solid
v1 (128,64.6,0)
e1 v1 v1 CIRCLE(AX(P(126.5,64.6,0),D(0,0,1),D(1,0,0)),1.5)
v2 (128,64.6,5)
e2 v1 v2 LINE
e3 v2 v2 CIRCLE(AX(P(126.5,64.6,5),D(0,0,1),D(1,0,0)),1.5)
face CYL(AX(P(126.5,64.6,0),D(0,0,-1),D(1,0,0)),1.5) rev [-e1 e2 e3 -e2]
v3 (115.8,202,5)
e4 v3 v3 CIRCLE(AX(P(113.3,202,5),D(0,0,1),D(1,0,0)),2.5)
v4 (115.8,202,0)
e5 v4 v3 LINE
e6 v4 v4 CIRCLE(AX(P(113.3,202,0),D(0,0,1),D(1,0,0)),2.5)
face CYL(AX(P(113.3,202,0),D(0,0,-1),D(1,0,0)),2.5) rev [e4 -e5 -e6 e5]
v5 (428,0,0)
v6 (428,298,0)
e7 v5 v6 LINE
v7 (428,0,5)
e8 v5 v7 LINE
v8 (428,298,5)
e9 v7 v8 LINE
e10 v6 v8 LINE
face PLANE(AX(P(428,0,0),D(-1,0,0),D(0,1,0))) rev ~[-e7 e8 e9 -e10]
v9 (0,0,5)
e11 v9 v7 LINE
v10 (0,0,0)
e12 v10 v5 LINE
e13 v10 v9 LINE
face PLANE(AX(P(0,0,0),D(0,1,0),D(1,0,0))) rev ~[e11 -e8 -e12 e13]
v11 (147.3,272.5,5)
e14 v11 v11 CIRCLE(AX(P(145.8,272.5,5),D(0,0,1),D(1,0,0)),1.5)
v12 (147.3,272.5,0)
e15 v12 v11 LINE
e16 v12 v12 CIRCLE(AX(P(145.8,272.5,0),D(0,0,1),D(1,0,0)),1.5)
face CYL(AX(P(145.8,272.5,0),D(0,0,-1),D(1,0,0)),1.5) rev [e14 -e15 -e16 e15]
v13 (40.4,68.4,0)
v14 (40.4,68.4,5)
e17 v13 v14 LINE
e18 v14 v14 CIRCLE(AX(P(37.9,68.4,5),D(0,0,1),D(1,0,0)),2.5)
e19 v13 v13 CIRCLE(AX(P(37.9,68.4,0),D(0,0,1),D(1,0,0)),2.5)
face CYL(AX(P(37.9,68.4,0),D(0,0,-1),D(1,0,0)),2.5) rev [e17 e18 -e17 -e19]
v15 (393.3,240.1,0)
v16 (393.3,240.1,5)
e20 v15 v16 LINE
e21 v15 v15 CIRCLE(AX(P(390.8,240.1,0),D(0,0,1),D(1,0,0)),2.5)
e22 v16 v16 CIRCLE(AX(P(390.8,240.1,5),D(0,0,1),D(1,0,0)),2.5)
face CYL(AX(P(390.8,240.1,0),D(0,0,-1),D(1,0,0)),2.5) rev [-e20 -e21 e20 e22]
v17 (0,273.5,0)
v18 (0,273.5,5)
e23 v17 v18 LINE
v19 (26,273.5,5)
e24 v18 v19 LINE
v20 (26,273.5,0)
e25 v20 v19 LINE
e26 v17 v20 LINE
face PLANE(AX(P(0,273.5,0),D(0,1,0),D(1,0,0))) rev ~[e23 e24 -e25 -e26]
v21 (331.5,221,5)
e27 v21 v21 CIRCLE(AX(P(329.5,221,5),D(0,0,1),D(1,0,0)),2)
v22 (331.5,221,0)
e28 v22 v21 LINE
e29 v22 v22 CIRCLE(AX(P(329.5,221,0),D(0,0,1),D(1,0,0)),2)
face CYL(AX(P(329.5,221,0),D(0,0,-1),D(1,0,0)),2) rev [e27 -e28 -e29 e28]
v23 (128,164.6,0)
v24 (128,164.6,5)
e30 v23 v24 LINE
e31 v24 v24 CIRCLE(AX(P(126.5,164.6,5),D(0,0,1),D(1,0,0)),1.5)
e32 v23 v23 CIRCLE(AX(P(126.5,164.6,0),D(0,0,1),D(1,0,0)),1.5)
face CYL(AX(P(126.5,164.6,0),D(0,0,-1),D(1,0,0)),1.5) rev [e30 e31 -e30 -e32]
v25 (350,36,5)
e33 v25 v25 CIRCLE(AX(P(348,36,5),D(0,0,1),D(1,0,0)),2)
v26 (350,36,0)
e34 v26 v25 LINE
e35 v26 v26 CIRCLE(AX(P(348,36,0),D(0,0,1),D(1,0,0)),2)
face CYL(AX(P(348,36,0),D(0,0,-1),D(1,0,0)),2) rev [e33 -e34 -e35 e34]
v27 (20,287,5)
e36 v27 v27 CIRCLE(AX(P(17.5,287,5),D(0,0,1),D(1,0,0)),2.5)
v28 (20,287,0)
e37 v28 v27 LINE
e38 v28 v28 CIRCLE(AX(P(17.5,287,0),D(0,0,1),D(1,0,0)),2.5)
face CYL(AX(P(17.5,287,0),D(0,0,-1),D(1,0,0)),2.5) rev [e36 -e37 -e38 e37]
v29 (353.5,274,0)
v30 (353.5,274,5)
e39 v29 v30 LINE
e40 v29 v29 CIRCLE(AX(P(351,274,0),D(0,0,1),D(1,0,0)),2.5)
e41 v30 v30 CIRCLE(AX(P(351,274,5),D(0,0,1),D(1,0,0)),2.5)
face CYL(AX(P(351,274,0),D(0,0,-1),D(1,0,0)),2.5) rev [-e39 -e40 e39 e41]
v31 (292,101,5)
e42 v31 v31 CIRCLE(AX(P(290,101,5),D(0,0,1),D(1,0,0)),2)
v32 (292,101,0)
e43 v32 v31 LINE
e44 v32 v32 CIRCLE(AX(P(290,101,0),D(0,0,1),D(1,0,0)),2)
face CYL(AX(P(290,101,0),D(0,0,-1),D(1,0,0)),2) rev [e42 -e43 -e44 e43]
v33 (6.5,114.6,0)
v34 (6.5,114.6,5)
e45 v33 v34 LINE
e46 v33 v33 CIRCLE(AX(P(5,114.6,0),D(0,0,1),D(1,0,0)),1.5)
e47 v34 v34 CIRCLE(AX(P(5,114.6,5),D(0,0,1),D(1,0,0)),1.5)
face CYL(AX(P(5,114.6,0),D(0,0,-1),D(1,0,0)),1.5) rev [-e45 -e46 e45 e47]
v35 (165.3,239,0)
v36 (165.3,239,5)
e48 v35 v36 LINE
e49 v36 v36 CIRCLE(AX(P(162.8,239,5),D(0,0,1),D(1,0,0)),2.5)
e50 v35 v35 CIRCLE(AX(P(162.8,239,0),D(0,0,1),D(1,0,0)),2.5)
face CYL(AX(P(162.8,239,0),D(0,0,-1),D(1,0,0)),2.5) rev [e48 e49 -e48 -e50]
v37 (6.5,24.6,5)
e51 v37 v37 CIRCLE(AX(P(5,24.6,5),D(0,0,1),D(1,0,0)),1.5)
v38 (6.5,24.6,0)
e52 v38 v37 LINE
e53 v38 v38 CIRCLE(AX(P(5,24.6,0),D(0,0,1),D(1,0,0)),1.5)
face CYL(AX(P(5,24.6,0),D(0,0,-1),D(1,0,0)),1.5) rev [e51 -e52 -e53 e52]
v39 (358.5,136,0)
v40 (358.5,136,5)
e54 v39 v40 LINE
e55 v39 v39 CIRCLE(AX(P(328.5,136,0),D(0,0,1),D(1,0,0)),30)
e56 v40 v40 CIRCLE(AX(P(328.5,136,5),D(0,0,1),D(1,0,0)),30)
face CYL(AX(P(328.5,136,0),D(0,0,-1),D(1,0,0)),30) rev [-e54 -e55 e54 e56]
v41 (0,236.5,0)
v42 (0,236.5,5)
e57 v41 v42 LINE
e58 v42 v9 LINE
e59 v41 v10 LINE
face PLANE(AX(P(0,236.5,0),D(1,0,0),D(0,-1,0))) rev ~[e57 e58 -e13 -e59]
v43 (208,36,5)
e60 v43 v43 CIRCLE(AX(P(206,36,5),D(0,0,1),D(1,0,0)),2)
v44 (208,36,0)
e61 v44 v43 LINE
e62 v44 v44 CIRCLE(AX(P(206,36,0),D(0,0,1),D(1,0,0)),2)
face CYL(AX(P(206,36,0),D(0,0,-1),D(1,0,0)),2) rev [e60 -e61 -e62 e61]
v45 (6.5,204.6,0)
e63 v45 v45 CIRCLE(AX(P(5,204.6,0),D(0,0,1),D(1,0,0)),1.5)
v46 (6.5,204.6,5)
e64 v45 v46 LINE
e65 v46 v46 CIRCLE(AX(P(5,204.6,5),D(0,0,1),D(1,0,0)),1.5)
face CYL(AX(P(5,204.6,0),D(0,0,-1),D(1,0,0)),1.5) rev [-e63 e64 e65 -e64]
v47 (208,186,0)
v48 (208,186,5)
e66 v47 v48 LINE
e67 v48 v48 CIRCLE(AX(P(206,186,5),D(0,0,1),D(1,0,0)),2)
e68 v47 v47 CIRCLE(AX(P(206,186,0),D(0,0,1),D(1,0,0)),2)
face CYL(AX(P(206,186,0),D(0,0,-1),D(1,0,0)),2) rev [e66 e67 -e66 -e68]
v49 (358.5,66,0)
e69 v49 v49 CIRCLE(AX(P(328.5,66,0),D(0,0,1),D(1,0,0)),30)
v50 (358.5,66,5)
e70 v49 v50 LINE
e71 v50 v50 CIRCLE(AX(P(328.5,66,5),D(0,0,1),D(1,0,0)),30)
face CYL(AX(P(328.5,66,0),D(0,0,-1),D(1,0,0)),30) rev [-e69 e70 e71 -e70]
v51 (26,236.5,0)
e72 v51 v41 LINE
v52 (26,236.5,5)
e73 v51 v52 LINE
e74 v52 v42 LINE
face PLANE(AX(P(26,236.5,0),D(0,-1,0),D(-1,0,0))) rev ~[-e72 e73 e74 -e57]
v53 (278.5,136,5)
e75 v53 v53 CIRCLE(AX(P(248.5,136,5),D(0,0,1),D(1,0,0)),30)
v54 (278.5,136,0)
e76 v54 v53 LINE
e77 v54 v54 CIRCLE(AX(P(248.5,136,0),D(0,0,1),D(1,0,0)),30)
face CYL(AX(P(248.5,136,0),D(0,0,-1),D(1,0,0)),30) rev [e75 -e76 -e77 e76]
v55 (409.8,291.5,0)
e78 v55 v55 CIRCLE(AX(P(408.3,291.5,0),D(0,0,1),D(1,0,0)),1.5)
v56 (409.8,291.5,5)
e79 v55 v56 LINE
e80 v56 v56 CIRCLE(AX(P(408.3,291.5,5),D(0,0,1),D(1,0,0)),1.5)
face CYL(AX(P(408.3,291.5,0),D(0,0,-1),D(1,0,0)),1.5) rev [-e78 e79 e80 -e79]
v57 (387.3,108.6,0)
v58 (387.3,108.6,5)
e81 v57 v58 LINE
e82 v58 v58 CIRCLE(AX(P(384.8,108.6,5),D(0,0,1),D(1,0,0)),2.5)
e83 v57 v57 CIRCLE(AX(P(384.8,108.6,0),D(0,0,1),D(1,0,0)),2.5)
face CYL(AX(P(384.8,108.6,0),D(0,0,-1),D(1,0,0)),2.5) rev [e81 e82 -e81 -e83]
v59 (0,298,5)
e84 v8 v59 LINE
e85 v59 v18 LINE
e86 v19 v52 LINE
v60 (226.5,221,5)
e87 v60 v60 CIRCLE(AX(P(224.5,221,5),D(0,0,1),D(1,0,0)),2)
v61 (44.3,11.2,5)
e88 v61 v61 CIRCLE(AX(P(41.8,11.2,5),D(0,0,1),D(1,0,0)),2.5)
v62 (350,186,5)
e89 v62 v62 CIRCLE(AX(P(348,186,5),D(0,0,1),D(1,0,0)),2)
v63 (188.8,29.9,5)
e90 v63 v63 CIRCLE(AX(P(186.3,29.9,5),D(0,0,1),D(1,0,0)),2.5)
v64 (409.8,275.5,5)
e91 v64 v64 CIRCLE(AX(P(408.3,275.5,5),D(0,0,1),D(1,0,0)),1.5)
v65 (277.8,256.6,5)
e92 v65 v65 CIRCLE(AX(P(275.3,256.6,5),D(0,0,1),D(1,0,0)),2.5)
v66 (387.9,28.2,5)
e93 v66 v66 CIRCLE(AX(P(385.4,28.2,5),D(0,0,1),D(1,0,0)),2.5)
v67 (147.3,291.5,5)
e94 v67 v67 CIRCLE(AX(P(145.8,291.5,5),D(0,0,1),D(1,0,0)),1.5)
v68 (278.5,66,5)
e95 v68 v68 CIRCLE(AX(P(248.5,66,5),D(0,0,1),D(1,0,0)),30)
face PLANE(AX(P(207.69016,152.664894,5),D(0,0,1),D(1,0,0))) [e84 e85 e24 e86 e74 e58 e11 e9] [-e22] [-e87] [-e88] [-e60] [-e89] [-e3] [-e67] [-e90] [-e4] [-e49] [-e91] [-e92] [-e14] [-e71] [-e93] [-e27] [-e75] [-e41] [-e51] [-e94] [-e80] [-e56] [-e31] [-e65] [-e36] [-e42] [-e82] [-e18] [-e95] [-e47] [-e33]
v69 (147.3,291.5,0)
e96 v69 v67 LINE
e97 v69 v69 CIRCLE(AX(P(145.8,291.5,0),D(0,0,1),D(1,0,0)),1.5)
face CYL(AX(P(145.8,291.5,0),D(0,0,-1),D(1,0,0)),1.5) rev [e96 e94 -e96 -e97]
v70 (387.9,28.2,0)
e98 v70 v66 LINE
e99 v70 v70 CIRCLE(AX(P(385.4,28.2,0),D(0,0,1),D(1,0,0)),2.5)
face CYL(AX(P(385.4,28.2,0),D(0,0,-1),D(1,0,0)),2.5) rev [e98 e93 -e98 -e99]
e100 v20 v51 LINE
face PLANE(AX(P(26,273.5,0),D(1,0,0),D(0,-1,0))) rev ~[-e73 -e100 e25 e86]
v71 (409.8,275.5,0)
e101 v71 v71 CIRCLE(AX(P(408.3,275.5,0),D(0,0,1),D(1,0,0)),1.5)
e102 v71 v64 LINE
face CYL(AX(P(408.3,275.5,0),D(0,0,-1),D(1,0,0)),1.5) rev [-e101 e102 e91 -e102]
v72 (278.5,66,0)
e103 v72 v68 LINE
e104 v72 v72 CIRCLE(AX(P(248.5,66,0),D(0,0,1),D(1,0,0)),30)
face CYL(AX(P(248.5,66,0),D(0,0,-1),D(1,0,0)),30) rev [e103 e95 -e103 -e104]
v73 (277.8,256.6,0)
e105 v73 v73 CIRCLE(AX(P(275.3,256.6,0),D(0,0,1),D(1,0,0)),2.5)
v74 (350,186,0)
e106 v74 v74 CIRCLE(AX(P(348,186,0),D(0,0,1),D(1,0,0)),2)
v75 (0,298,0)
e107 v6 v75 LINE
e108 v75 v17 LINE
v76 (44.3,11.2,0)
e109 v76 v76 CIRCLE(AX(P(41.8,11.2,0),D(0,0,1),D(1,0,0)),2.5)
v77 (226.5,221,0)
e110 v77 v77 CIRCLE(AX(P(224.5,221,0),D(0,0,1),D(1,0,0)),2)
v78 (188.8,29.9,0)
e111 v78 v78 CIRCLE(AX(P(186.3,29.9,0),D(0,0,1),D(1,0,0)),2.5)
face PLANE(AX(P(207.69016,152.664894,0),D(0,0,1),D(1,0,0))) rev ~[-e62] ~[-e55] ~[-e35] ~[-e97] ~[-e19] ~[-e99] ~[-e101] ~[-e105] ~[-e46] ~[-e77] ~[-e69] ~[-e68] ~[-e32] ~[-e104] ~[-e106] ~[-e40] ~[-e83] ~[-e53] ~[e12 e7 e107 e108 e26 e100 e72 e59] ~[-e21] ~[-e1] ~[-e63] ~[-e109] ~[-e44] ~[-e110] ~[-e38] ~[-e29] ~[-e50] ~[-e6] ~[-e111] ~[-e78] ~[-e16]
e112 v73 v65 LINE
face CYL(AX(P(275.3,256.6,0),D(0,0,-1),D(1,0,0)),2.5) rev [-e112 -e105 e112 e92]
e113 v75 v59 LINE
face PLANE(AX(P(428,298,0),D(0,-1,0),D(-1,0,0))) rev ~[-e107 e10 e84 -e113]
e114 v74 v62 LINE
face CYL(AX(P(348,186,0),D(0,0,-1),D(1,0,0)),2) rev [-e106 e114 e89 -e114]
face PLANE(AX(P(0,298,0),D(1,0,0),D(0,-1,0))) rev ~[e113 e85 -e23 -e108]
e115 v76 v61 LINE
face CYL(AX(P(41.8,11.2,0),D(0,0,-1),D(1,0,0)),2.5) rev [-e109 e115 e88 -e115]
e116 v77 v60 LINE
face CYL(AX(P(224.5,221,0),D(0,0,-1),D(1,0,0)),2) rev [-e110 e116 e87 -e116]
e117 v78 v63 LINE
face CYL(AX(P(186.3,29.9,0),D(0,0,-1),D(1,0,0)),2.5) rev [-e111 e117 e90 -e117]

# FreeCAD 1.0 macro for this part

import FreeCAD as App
import Part
import Sketcher
from FreeCAD import Vector

doc = App.newDocument("Part")
body = doc.addObject("PartDesign::Body", "Body")

# Sketch on XY plane
sketch1 = body.newObject("Sketcher::SketchObject", "Sketch")
sketch1.AttachmentSupport = (doc.getObject("XY_Plane"), [""])
sketch1.MapMode = "FlatFace"
sketch1.addGeometry(Part.LineSegment(Vector(428, 298, 0), Vector(0, 298, 0)), False)
sketch1.addGeometry(Part.LineSegment(Vector(0, 298, 0), Vector(0, 273.5, 0)), False)
sketch1.addGeometry(Part.LineSegment(Vector(0, 273.5, 0), Vector(26, 273.5, 0)), False)
sketch1.addGeometry(Part.LineSegment(Vector(26, 273.5, 0), Vector(26, 236.5, 0)), False)
sketch1.addGeometry(Part.LineSegment(Vector(26, 236.5, 0), Vector(0, 236.5, 0)), False)
sketch1.addGeometry(Part.LineSegment(Vector(0, 236.5, 0), Vector(0, 0, 0)), False)
sketch1.addGeometry(Part.LineSegment(Vector(0, 0, 0), Vector(428, 0, 0)), False)
sketch1.addGeometry(Part.LineSegment(Vector(428, 0, 0), Vector(428, 298, 0)), False)
sketch1.addGeometry(Part.Circle(Vector(5, 24.6, 0), Vector(0, 0, 1), 1.5), False)
sketch1.addGeometry(Part.Circle(Vector(41.8, 11.2, 0), Vector(0, 0, 1), 2.5), False)
sketch1.addGeometry(Part.Circle(Vector(37.9, 68.4, 0), Vector(0, 0, 1), 2.5), False)
sketch1.addGeometry(Part.Circle(Vector(186.3, 29.9, 0), Vector(0, 0, 1), 2.5), False)
sketch1.addGeometry(Part.Circle(Vector(206, 36, 0), Vector(0, 0, 1), 2), False)
sketch1.addGeometry(Part.Circle(Vector(126.5, 64.6, 0), Vector(0, 0, 1), 1.5), False)
sketch1.addGeometry(Part.Circle(Vector(5, 114.6, 0), Vector(0, 0, 1), 1.5), False)
sketch1.addGeometry(Part.Circle(Vector(248.5, 66, 0), Vector(0, 0, 1), 30), False)
sketch1.addGeometry(Part.Circle(Vector(348, 36, 0), Vector(0, 0, 1), 2), False)
sketch1.addGeometry(Part.Circle(Vector(385.4, 28.2, 0), Vector(0, 0, 1), 2.5), False)
sketch1.addGeometry(Part.Circle(Vector(328.5, 66, 0), Vector(0, 0, 1), 30), False)
sketch1.addGeometry(Part.Circle(Vector(290, 101, 0), Vector(0, 0, 1), 2), False)
sketch1.addGeometry(Part.Circle(Vector(248.5, 136, 0), Vector(0, 0, 1), 30), False)
sketch1.addGeometry(Part.Circle(Vector(384.8, 108.6, 0), Vector(0, 0, 1), 2.5), False)
sketch1.addGeometry(Part.Circle(Vector(328.5, 136, 0), Vector(0, 0, 1), 30), False)
sketch1.addGeometry(Part.Circle(Vector(5, 204.6, 0), Vector(0, 0, 1), 1.5), False)
sketch1.addGeometry(Part.Circle(Vector(126.5, 164.6, 0), Vector(0, 0, 1), 1.5), False)
sketch1.addGeometry(Part.Circle(Vector(206, 186, 0), Vector(0, 0, 1), 2), False)
sketch1.addGeometry(Part.Circle(Vector(113.3, 202, 0), Vector(0, 0, 1), 2.5), False)
sketch1.addGeometry(Part.Circle(Vector(17.5, 287, 0), Vector(0, 0, 1), 2.5), False)
sketch1.addGeometry(Part.Circle(Vector(162.8, 239, 0), Vector(0, 0, 1), 2.5), False)
sketch1.addGeometry(Part.Circle(Vector(145.8, 272.5, 0), Vector(0, 0, 1), 1.5), False)
sketch1.addGeometry(Part.Circle(Vector(145.8, 291.5, 0), Vector(0, 0, 1), 1.5), False)
sketch1.addGeometry(Part.Circle(Vector(224.5, 221, 0), Vector(0, 0, 1), 2), False)
sketch1.addGeometry(Part.Circle(Vector(348, 186, 0), Vector(0, 0, 1), 2), False)
sketch1.addGeometry(Part.Circle(Vector(329.5, 221, 0), Vector(0, 0, 1), 2), False)
sketch1.addGeometry(Part.Circle(Vector(275.3, 256.6, 0), Vector(0, 0, 1), 2.5), False)
sketch1.addGeometry(Part.Circle(Vector(390.8, 240.1, 0), Vector(0, 0, 1), 2.5), False)
sketch1.addGeometry(Part.Circle(Vector(351, 274, 0), Vector(0, 0, 1), 2.5), False)
sketch1.addGeometry(Part.Circle(Vector(408.3, 275.5, 0), Vector(0, 0, 1), 1.5), False)
sketch1.addGeometry(Part.Circle(Vector(408.3, 291.5, 0), Vector(0, 0, 1), 1.5), False)
sketch1.addConstraint(Sketcher.Constraint("Coincident", 0, 2, 1, 1))
sketch1.addConstraint(Sketcher.Constraint("Coincident", 1, 2, 2, 1))
sketch1.addConstraint(Sketcher.Constraint("Coincident", 2, 2, 3, 1))
sketch1.addConstraint(Sketcher.Constraint("Coincident", 3, 2, 4, 1))
sketch1.addConstraint(Sketcher.Constraint("Coincident", 4, 2, 5, 1))
sketch1.addConstraint(Sketcher.Constraint("Coincident", 5, 2, 6, 1))
sketch1.addConstraint(Sketcher.Constraint("Coincident", 6, 2, 7, 1))
sketch1.addConstraint(Sketcher.Constraint("Coincident", 7, 2, 0, 1))
sketch1.addConstraint(Sketcher.Constraint("Horizontal", 0))
sketch1.addConstraint(Sketcher.Constraint("Vertical", 1))
sketch1.addConstraint(Sketcher.Constraint("Horizontal", 2))
sketch1.addConstraint(Sketcher.Constraint("Vertical", 3))
sketch1.addConstraint(Sketcher.Constraint("Horizontal", 4))
sketch1.addConstraint(Sketcher.Constraint("Vertical", 5))
sketch1.addConstraint(Sketcher.Constraint("Horizontal", 6))
sketch1.addConstraint(Sketcher.Constraint("Vertical", 7))
sketch1.addConstraint(Sketcher.Constraint("Coincident", 5, 2, -1, 1))
sketch1.addConstraint(Sketcher.Constraint("Equal", 9, 10))
sketch1.addConstraint(Sketcher.Constraint("Equal", 10, 11))
sketch1.addConstraint(Sketcher.Constraint("Equal", 8, 13))
sketch1.addConstraint(Sketcher.Constraint("Equal", 13, 14))
sketch1.addConstraint(Sketcher.Constraint("Equal", 12, 16))
sketch1.addConstraint(Sketcher.Constraint("Equal", 11, 17))
sketch1.addConstraint(Sketcher.Constraint("Equal", 15, 18))
sketch1.addConstraint(Sketcher.Constraint("Equal", 16, 19))
sketch1.addConstraint(Sketcher.Constraint("Equal", 18, 20))
sketch1.addConstraint(Sketcher.Constraint("Equal", 17, 21))
sketch1.addConstraint(Sketcher.Constraint("Equal", 20, 22))
sketch1.addConstraint(Sketcher.Constraint("Equal", 14, 23))
sketch1.addConstraint(Sketcher.Constraint("Equal", 23, 24))
sketch1.addConstraint(Sketcher.Constraint("Equal", 19, 25))
sketch1.addConstraint(Sketcher.Constraint("Equal", 21, 26))
sketch1.addConstraint(Sketcher.Constraint("Equal", 26, 27))
sketch1.addConstraint(Sketcher.Constraint("Equal", 27, 28))
sketch1.addConstraint(Sketcher.Constraint("Equal", 24, 29))
sketch1.addConstraint(Sketcher.Constraint("Equal", 29, 30))
sketch1.addConstraint(Sketcher.Constraint("Equal", 25, 31))
sketch1.addConstraint(Sketcher.Constraint("Equal", 31, 32))
sketch1.addConstraint(Sketcher.Constraint("Equal", 32, 33))
sketch1.addConstraint(Sketcher.Constraint("Equal", 28, 34))
sketch1.addConstraint(Sketcher.Constraint("Equal", 34, 35))
sketch1.addConstraint(Sketcher.Constraint("Equal", 35, 36))
sketch1.addConstraint(Sketcher.Constraint("Equal", 30, 37))
sketch1.addConstraint(Sketcher.Constraint("Equal", 37, 38))
sketch1.addConstraint(Sketcher.Constraint("PointOnObject", 0, 2, -2))
sketch1.addConstraint(Sketcher.Constraint("Horizontal", 12, 3, 16, 3))
sketch1.addConstraint(Sketcher.Constraint("Horizontal", 15, 3, 18, 3))
sketch1.addConstraint(Sketcher.Constraint("Horizontal", 20, 3, 22, 3))
sketch1.addConstraint(Sketcher.Constraint("Horizontal", 25, 3, 32, 3))
sketch1.addConstraint(Sketcher.Constraint("Horizontal", 31, 3, 33, 3))
sketch1.addConstraint(Sketcher.Constraint("Horizontal", 30, 3, 38, 3))
sketch1.addConstraint(Sketcher.Constraint("Vertical", 8, 3, 14, 3))
sketch1.addConstraint(Sketcher.Constraint("Vertical", 15, 3, 20, 3))
sketch1.addConstraint(Sketcher.Constraint("Vertical", 18, 3, 22, 3))
sketch1.addConstraint(Sketcher.Constraint("Vertical", 14, 3, 23, 3))
sketch1.addConstraint(Sketcher.Constraint("Vertical", 13, 3, 24, 3))
sketch1.addConstraint(Sketcher.Constraint("Vertical", 12, 3, 25, 3))
sketch1.addConstraint(Sketcher.Constraint("Vertical", 29, 3, 30, 3))
sketch1.addConstraint(Sketcher.Constraint("Vertical", 16, 3, 32, 3))
sketch1.addConstraint(Sketcher.Constraint("Vertical", 37, 3, 38, 3))
sketch1.addConstraint(Sketcher.Constraint("Diameter", 8, 3.0))
sketch1.addConstraint(Sketcher.Constraint("Diameter", 9, 5.0))
sketch1.addConstraint(Sketcher.Constraint("Diameter", 12, 4.0))
sketch1.addConstraint(Sketcher.Constraint("Diameter", 15, 60.0))
sketch1.addConstraint(Sketcher.Constraint("DistanceX", 0, 2, 0, 1, 428.0))
sketch1.addConstraint(Sketcher.Constraint("DistanceX", 2, 1, 2, 2, 26.0))
sketch1.addConstraint(Sketcher.Constraint("DistanceY", 3, 2, 3, 1, 37.0))
sketch1.addConstraint(Sketcher.Constraint("DistanceY", 7, 1, 7, 2, 298.0))
sketch1.addConstraint(Sketcher.Constraint("DistanceY", 1, 2, 1, 1, 24.5))
sketch1.addConstraint(Sketcher.Constraint("DistanceX", -1, 1, 8, 3, 5.0))
sketch1.addConstraint(Sketcher.Constraint("DistanceX", -1, 1, 12, 3, 206.0))
sketch1.addConstraint(Sketcher.Constraint("DistanceY", -1, 1, 12, 3, 36.0))
sketch1.addConstraint(Sketcher.Constraint("DistanceY", -1, 1, 15, 3, 66.0))
sketch1.addConstraint(Sketcher.Constraint("DistanceX", -1, 1, 16, 3, 348.0))
sketch1.addConstraint(Sketcher.Constraint("DistanceX", -1, 1, 19, 3, 290.0))
sketch1.addConstraint(Sketcher.Constraint("DistanceY", -1, 1, 19, 3, 101.0))
sketch1.addConstraint(Sketcher.Constraint("DistanceY", -1, 1, 20, 3, 136.0))
sketch1.addConstraint(Sketcher.Constraint("DistanceY", -1, 1, 25, 3, 186.0))
sketch1.addConstraint(Sketcher.Constraint("DistanceY", -1, 1, 26, 3, 202.0))
sketch1.addConstraint(Sketcher.Constraint("DistanceY", -1, 1, 27, 3, 287.0))
sketch1.addConstraint(Sketcher.Constraint("DistanceY", -1, 1, 28, 3, 239.0))
sketch1.addConstraint(Sketcher.Constraint("DistanceY", -1, 1, 31, 3, 221.0))
sketch1.addConstraint(Sketcher.Constraint("DistanceX", -1, 1, 36, 3, 351.0))
sketch1.addConstraint(Sketcher.Constraint("DistanceY", -1, 1, 36, 3, 274.0))
sketch1.addConstraint(Sketcher.Constraint("DistanceY", 8, 3, 13, 3, 40.0))
sketch1.addConstraint(Sketcher.Constraint("DistanceY", 8, 3, 14, 3, 90.0))
sketch1.addConstraint(Sketcher.Constraint("DistanceX", 13, 3, 15, 3, 122.0))
sketch1.addConstraint(Sketcher.Constraint("DistanceX", 15, 3, 18, 3, 80.0))
sketch1.addConstraint(Sketcher.Constraint("DistanceY", 14, 3, 23, 3, 90.0))
sketch1.addConstraint(Sketcher.Constraint("DistanceY", 13, 3, 24, 3, 100.0))
sketch1.addConstraint(Sketcher.Constraint("DistanceX", 27, 3, 24, 3, 109.0))
sketch1.addConstraint(Sketcher.Constraint("DistanceX", 29, 3, 28, 3, 17.0))
sketch1.addConstraint(Sketcher.Constraint("DistanceY", 29, 3, 30, 3, 19.0))
sketch1.addConstraint(Sketcher.Constraint("DistanceX", 31, 3, 20, 3, 24.0))
sketch1.addConstraint(Sketcher.Constraint("DistanceX", 22, 3, 33, 3, 1.0))
sketch1.addConstraint(Sketcher.Constraint("DistanceX", 21, 3, 35, 3, 6.0))
sketch1.addConstraint(Sketcher.Constraint("DistanceX", 34, 3, 37, 3, 133.0))
sketch1.addConstraint(Sketcher.Constraint("DistanceY", 37, 3, 38, 3, 16.0))
sketch1.addConstraint(Sketcher.Constraint("DistanceY", 29, 3, 1, 2, 1.0))
sketch1.addConstraint(Sketcher.Constraint("DistanceY", -1, 1, 8, 3, 24.6))
sketch1.addConstraint(Sketcher.Constraint("DistanceX", -1, 1, 9, 3, 41.8))
sketch1.addConstraint(Sketcher.Constraint("DistanceY", -1, 1, 9, 3, 11.2))
sketch1.addConstraint(Sketcher.Constraint("DistanceX", -1, 1, 10, 3, 37.9))
sketch1.addConstraint(Sketcher.Constraint("DistanceY", -1, 1, 10, 3, 68.4))
sketch1.addConstraint(Sketcher.Constraint("DistanceX", -1, 1, 11, 3, 186.3))
sketch1.addConstraint(Sketcher.Constraint("DistanceY", -1, 1, 11, 3, 29.9))
sketch1.addConstraint(Sketcher.Constraint("DistanceX", -1, 1, 13, 3, 126.5))
sketch1.addConstraint(Sketcher.Constraint("DistanceX", -1, 1, 17, 3, 385.4))
sketch1.addConstraint(Sketcher.Constraint("DistanceY", -1, 1, 17, 3, 28.2))
sketch1.addConstraint(Sketcher.Constraint("DistanceX", -1, 1, 21, 3, 384.8))
sketch1.addConstraint(Sketcher.Constraint("DistanceY", -1, 1, 21, 3, 108.6))
sketch1.addConstraint(Sketcher.Constraint("DistanceX", -1, 1, 26, 3, 113.3))
sketch1.addConstraint(Sketcher.Constraint("DistanceX", -1, 1, 28, 3, 162.8))
sketch1.addConstraint(Sketcher.Constraint("DistanceX", -1, 1, 34, 3, 275.3))
sketch1.addConstraint(Sketcher.Constraint("DistanceY", -1, 1, 34, 3, 256.6))
sketch1.addConstraint(Sketcher.Constraint("DistanceY", -1, 1, 35, 3, 240.1))
pad1 = body.newObject("PartDesign::Pad", "Pad")
pad1.Profile = sketch1
pad1.Length = 5

doc.recompute()
